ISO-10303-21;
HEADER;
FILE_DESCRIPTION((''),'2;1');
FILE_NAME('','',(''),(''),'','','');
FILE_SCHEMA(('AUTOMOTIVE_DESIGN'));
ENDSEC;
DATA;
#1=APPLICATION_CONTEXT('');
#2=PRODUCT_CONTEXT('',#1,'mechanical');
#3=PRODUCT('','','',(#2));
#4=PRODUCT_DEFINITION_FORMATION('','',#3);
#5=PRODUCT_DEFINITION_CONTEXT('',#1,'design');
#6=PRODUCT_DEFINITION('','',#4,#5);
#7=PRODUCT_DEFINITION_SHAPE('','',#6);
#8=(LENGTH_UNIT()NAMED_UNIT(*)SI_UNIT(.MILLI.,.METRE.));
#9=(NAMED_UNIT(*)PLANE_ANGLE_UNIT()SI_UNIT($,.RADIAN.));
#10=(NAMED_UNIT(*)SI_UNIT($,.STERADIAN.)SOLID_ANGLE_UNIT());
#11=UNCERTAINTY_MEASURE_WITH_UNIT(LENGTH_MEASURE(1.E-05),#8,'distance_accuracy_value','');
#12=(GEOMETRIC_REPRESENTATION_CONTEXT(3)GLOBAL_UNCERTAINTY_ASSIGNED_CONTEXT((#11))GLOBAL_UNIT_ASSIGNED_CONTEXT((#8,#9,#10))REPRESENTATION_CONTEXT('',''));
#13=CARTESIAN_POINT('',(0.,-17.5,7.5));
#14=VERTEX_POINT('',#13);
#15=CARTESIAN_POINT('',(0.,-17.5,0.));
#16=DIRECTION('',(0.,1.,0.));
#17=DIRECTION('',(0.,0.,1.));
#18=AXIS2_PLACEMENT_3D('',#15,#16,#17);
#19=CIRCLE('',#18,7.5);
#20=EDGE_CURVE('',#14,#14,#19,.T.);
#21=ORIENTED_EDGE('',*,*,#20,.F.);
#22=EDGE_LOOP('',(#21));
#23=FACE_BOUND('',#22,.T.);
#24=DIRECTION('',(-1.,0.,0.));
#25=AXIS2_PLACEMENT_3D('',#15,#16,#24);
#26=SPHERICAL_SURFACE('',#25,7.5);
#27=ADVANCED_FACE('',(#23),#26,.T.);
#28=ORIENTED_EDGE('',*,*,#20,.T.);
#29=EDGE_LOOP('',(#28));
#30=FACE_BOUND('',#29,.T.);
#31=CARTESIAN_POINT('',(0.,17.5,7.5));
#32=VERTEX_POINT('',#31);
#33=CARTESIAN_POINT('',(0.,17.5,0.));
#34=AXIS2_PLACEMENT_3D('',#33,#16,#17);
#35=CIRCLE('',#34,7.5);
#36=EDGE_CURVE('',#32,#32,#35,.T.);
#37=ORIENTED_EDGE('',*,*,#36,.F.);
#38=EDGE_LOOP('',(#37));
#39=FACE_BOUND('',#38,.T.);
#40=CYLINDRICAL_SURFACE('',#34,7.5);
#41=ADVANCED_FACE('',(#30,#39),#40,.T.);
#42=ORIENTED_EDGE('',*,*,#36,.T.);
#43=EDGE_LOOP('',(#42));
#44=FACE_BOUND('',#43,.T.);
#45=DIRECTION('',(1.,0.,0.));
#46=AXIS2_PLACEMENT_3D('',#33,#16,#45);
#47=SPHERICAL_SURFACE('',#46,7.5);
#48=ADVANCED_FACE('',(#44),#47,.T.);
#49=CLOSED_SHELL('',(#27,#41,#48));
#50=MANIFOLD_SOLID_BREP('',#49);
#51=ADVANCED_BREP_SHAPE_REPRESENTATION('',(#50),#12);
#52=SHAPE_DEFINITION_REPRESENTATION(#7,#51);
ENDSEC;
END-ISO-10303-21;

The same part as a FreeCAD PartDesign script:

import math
import FreeCAD as App
import Part
import Sketcher

doc = App.newDocument("Part")
params = doc.addObject("Spreadsheet::Sheet", "Params")
for row, (alias, value) in enumerate([
    ("sketch1_radius", "7.5 mm"),
    ("sketch1_height", "35 mm"),
    ("revolution_angle", "360 deg"),
], start=1):
    params.set(f"A{row}", alias)
    params.set(f"B{row}", "=" + value)
    params.setAlias(f"B{row}", alias)

body = doc.addObject("PartDesign::Body", "Body")

# Sketch on XY plane
sketch1 = body.newObject("Sketcher::SketchObject", "Sketch")
sketch1.AttachmentSupport = (doc.getObject("XY_Plane"), [""])
sketch1.MapMode = "FlatFace"
sketch1.addGeometry([
    Part.LineSegment(App.Vector(7.5, -17.5, 0), App.Vector(7.5, 17.5, 0)),
    Part.ArcOfCircle(Part.Circle(App.Vector(0, 17.5, 0), App.Vector(0, 0, 1), 7.5), math.radians(0), math.radians(90)),
    Part.LineSegment(App.Vector(0, 25, 0), App.Vector(0, -25, 0)),
    Part.ArcOfCircle(Part.Circle(App.Vector(0, -17.5, 0), App.Vector(0, 0, 1), 7.5), math.radians(-90), math.radians(0)),
], False)
sketch1.addConstraint([
    Sketcher.Constraint("Tangent", 0, 2, 1, 1),
    Sketcher.Constraint("Coincident", 1, 2, 2, 1),
    Sketcher.Constraint("Coincident", 2, 2, 3, 1),
    Sketcher.Constraint("Tangent", 3, 2, 0, 1),
    Sketcher.Constraint("Vertical", 0),
    Sketcher.Constraint("Vertical", 2),
    Sketcher.Constraint("Equal", 1, 3),
    Sketcher.Constraint("Symmetric", 1, 3, 3, 3, -1, 1),
    Sketcher.Constraint("PointOnObject", 1, 2, -2),
    Sketcher.Constraint("Radius", 1, 7.5),
    Sketcher.Constraint("DistanceY", 0, 1, 0, 2, 35.0),
])
sketch1.setExpression("Constraints[9]", "Params.sketch1_radius")
sketch1.setExpression("Constraints[10]", "Params.sketch1_height")
revolution = body.newObject("PartDesign::Revolution", "Revolution")
revolution.Profile = sketch1
revolution.ReferenceAxis = (sketch1, ["V_Axis"])
revolution.setExpression("Angle", "Params.revolution_angle")

doc.recompute()
